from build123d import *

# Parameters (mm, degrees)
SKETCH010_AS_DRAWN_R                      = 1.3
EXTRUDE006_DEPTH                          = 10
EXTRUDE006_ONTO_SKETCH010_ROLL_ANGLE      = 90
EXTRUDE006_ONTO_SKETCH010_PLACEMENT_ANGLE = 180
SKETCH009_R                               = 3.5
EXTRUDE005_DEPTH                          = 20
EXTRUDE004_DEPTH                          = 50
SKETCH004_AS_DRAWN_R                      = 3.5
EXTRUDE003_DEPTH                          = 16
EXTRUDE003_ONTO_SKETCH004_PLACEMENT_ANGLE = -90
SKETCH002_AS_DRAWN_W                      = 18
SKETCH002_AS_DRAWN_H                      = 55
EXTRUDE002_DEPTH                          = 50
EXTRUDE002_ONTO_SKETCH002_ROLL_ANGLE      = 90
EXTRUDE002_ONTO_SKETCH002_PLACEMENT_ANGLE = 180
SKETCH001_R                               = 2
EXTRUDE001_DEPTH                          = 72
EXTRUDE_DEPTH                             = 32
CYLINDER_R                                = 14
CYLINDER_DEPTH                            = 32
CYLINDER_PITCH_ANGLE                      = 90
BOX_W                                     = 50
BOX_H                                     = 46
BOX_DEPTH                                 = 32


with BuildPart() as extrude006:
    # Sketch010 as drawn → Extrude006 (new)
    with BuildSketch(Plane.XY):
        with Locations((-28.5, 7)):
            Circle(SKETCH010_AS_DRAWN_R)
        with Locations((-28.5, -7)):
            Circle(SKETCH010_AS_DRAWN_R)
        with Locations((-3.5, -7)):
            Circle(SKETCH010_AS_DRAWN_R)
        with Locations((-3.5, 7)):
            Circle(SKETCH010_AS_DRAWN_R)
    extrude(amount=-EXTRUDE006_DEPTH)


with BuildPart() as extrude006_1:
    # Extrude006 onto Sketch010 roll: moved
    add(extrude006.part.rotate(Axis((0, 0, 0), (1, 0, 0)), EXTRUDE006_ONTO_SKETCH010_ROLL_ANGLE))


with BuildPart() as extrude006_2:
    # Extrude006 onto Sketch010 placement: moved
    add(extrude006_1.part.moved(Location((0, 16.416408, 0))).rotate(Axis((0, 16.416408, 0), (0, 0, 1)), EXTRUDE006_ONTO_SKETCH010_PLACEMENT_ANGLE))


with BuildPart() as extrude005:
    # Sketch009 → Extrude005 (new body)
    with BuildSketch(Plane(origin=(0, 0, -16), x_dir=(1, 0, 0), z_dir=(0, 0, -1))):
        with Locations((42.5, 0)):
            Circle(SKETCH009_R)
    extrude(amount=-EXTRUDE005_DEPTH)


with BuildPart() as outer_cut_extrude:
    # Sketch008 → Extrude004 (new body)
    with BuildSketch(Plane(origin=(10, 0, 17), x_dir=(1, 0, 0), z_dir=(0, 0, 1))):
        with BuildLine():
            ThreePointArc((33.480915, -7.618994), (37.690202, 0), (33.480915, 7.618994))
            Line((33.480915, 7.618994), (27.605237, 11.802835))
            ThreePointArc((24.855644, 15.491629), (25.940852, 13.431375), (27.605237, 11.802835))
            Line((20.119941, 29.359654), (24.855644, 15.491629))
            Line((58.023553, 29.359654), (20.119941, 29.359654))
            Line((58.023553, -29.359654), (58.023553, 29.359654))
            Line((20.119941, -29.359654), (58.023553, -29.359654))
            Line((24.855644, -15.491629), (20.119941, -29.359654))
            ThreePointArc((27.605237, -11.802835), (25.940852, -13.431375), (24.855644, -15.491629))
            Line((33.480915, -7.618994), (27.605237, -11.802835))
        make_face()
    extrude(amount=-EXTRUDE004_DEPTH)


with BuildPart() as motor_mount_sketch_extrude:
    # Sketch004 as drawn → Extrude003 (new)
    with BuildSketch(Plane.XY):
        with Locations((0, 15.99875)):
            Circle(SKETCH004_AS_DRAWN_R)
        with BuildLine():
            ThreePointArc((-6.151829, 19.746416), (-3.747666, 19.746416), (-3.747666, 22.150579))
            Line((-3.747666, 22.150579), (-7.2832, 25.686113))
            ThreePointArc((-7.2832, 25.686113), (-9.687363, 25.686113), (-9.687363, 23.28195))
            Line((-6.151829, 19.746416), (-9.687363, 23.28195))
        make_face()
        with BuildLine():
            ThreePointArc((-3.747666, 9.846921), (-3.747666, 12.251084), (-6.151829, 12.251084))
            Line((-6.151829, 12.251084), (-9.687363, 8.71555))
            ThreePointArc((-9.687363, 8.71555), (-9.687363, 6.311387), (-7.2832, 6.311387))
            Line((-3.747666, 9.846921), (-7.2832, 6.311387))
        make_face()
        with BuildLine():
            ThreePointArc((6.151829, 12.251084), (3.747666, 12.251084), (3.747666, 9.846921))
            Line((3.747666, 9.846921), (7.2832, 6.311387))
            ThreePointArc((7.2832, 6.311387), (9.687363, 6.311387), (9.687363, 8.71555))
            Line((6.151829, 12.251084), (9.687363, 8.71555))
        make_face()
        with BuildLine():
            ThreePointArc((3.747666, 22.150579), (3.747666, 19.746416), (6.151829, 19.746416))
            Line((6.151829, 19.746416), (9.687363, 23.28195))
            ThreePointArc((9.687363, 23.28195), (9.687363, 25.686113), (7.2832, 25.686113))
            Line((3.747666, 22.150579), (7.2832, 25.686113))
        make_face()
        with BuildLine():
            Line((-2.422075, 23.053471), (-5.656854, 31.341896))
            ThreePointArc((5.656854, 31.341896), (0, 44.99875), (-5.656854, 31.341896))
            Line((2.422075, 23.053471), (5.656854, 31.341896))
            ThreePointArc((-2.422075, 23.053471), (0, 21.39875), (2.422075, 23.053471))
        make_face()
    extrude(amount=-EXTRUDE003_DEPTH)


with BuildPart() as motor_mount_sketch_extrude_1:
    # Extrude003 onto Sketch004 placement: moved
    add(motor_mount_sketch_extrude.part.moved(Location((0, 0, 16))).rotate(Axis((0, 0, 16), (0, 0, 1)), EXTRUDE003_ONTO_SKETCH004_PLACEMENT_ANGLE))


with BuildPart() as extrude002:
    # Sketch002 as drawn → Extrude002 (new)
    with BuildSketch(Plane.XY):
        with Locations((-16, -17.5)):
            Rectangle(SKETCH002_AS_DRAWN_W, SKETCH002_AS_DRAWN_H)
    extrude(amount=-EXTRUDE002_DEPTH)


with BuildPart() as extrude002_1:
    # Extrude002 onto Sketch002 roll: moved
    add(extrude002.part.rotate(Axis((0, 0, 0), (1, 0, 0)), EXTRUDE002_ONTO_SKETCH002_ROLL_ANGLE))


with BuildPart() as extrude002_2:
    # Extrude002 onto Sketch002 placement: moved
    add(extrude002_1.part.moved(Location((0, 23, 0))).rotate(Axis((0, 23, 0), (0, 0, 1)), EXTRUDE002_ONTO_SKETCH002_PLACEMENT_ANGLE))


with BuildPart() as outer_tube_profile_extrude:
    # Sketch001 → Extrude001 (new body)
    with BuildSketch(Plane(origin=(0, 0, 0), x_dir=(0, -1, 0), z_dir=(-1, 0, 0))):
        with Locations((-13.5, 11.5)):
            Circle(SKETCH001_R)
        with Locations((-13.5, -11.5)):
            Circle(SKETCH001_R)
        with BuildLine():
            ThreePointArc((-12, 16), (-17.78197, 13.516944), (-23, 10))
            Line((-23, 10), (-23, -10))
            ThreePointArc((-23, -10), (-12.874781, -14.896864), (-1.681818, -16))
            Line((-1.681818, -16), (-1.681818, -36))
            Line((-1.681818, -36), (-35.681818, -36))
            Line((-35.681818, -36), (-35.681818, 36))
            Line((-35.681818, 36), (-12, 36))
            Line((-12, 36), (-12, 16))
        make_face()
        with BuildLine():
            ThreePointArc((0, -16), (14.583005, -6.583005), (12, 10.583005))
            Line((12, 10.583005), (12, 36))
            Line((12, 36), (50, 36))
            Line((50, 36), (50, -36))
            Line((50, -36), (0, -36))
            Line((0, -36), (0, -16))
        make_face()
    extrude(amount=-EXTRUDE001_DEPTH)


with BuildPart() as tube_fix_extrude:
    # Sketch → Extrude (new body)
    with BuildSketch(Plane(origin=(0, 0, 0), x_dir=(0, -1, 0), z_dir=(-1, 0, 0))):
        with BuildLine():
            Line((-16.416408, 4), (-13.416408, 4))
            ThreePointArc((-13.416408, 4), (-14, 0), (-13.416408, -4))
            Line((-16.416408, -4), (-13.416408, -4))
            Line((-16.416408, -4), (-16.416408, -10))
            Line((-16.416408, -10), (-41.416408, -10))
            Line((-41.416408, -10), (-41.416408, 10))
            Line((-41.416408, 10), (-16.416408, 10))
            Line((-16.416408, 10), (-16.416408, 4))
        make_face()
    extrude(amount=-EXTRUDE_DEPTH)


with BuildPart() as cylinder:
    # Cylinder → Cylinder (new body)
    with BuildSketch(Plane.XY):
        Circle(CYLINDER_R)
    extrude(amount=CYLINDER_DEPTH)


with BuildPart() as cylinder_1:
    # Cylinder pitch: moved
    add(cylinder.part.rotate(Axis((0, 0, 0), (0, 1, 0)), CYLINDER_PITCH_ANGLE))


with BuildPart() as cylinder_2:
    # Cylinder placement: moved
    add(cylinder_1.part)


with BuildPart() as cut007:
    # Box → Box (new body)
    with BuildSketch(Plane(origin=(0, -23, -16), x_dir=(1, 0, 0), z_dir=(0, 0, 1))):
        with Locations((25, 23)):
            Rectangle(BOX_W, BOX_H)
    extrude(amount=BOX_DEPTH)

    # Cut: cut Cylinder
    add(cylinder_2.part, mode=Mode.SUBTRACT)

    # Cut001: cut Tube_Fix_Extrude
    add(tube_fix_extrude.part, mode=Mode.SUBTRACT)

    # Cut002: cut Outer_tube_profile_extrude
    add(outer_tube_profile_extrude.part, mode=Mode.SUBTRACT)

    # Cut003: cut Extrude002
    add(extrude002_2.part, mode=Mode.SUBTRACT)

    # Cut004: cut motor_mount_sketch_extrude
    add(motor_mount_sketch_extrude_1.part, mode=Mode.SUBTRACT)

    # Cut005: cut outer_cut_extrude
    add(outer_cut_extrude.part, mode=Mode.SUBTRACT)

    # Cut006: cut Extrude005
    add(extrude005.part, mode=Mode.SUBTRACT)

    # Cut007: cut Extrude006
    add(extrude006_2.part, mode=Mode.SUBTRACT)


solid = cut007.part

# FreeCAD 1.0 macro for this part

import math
import FreeCAD as App
import Part
import Sketcher

V = App.Vector


def add_polygon(sketch, points):
    """Adds a closed chain of lines whose ends are joined by coincident constraints."""
    first, n = sketch.GeometryCount, len(points)
    for a, b in zip(points, points[1:] + points[:1]):
        sketch.addGeometry(Part.LineSegment(App.Vector(*a, 0), App.Vector(*b, 0)), False)
    for i in range(n):
        sketch.addConstraint(Sketcher.Constraint("Coincident", first + i, 2, first + (i + 1) % n, 1))

doc = App.newDocument("Part")
body = doc.addObject("PartDesign::Body", "Body")
body.AllowCompound = True

sketch1 = doc.addObject("Sketcher::SketchObject", "Sketch")
body.addObject(sketch1)
sketch1.AttachmentSupport = (doc.XY_Plane, [""])
sketch1.MapMode = "FlatFace"
sketch1.addGeometry(Part.Circle(V(-28.5, 7, 0), V(0, 0, 1), 1.3), False)
sketch1.addGeometry(Part.Circle(V(-28.5, -7, 0), V(0, 0, 1), 1.3), False)
sketch1.addGeometry(Part.Circle(V(-3.5, -7, 0), V(0, 0, 1), 1.3), False)
sketch1.addGeometry(Part.Circle(V(-3.5, 7, 0), V(0, 0, 1), 1.3), False)
sketch1.addConstraint(Sketcher.Constraint("Equal", 0, 1))
sketch1.addConstraint(Sketcher.Constraint("Equal", 1, 2))
sketch1.addConstraint(Sketcher.Constraint("Equal", 2, 3))
sketch1.addConstraint(Sketcher.Constraint("Symmetric", 0, 3, 1, 3, -1))
sketch1.addConstraint(Sketcher.Constraint("Symmetric", 2, 3, 3, 3, -1))
sketch1.addConstraint(Sketcher.Constraint("Horizontal", 1, 3, 2, 3))
sketch1.addConstraint(Sketcher.Constraint("Diameter", 0, 2.6))
sketch1.addConstraint(Sketcher.Constraint("DistanceY", -1, 1, 0, 3, 7.0))
sketch1.addConstraint(Sketcher.Constraint("DistanceX", 1, 3, 2, 3, 25.0))
sketch1.addConstraint(Sketcher.Constraint("DistanceX", 0, 3, -1, 1, 28.5))
pad1 = doc.addObject("PartDesign::Pad", "Pad")
body.addObject(pad1)
pad1.Profile = sketch1
pad1.Length = 10
pad1.Reversed = True
body2 = doc.addObject("PartDesign::Body", "Body001")
body2.AllowCompound = True
doc.recompute()

body.Placement = App.Placement(V(0, 0, 0), App.Rotation(V(1, 0, 0), 90))
boolean = doc.addObject("PartDesign::Boolean", "Boolean")
body2.addObject(boolean)
boolean.Type = "Fuse"
boolean.addObjects([body])
body3 = doc.addObject("PartDesign::Body", "Body002")
body3.AllowCompound = True
doc.recompute()

body2.Placement = App.Placement(V(0, 16.416408, 0), App.Rotation(V(0, 0, 1), 180))
boolean2 = doc.addObject("PartDesign::Boolean", "Boolean001")
body3.addObject(boolean2)
boolean2.Type = "Fuse"
boolean2.addObjects([body2])
body4 = doc.addObject("PartDesign::Body", "Body003")

sketch2 = doc.addObject("Sketcher::SketchObject", "Sketch001")
body4.addObject(sketch2)
sketch2.AttachmentSupport = (doc.getObject("XY_Plane003"), [""])
sketch2.MapMode = "FlatFace"
sketch2.AttachmentOffset = App.Placement(V(0, 0, -16), App.Rotation())
sketch2.addGeometry(Part.Circle(V(42.5, 0, 0), V(0, 0, 1), 3.5), False)
sketch2.addConstraint(Sketcher.Constraint("PointOnObject", 0, 3, -1))
sketch2.addConstraint(Sketcher.Constraint("Diameter", 0, 7.0))
sketch2.addConstraint(Sketcher.Constraint("DistanceX", -1, 1, 0, 3, 42.5))
pad2 = doc.addObject("PartDesign::Pad", "Pad001")
body4.addObject(pad2)
pad2.Profile = sketch2
pad2.Length = 20
body5 = doc.addObject("PartDesign::Body", "Body004")

sketch3 = doc.addObject("Sketcher::SketchObject", "Sketch002")
body5.addObject(sketch3)
sketch3.AttachmentSupport = (doc.getObject("XY_Plane004"), [""])
sketch3.MapMode = "FlatFace"
sketch3.AttachmentOffset = App.Placement(V(0, 0, 17), App.Rotation())
sketch3.addGeometry(Part.ArcOfCircle(Part.Circle(V(38.7, 0, 0), V(0, 0, 1), 9), math.radians(-58), math.radians(58)), False)
sketch3.addGeometry(Part.LineSegment(V(43.5, -7.6, 0), V(37.6, -11.8, 0)), False)
sketch3.addGeometry(Part.ArcOfCircle(Part.Circle(V(42, -17.9, 0), V(0, 0, 1), 7.5), math.radians(125), math.radians(161)), False)
sketch3.addGeometry(Part.LineSegment(V(34.9, -15.5, 0), V(30.1, -29.4, 0)), False)
sketch3.addGeometry(Part.LineSegment(V(30.1, -29.4, 0), V(68, -29.4, 0)), False)
sketch3.addGeometry(Part.LineSegment(V(68, -29.4, 0), V(68, 29.4, 0)), False)
sketch3.addGeometry(Part.LineSegment(V(68, 29.4, 0), V(30.1, 29.4, 0)), False)
sketch3.addGeometry(Part.LineSegment(V(30.1, 29.4, 0), V(34.9, 15.5, 0)), False)
sketch3.addGeometry(Part.ArcOfCircle(Part.Circle(V(42, 17.9, 0), V(0, 0, 1), 7.5), math.radians(-161), math.radians(-125)), False)
sketch3.addGeometry(Part.LineSegment(V(37.6, 11.8, 0), V(43.5, 7.6, 0)), False)
sketch3.addConstraint(Sketcher.Constraint("Coincident", 0, 1, 1, 1))
sketch3.addConstraint(Sketcher.Constraint("Tangent", 1, 2, 2, 1))
sketch3.addConstraint(Sketcher.Constraint("Tangent", 2, 2, 3, 1))
sketch3.addConstraint(Sketcher.Constraint("Coincident", 3, 2, 4, 1))
sketch3.addConstraint(Sketcher.Constraint("Coincident", 4, 2, 5, 1))
sketch3.addConstraint(Sketcher.Constraint("Coincident", 5, 2, 6, 1))
sketch3.addConstraint(Sketcher.Constraint("Coincident", 6, 2, 7, 1))
sketch3.addConstraint(Sketcher.Constraint("Tangent", 7, 2, 8, 1))
sketch3.addConstraint(Sketcher.Constraint("Tangent", 8, 2, 9, 1))
sketch3.addConstraint(Sketcher.Constraint("Coincident", 9, 2, 0, 2))
sketch3.addConstraint(Sketcher.Constraint("Horizontal", 4))
sketch3.addConstraint(Sketcher.Constraint("Vertical", 5))
sketch3.addConstraint(Sketcher.Constraint("Horizontal", 6))
sketch3.addConstraint(Sketcher.Constraint("Equal", 2, 8))
sketch3.addConstraint(Sketcher.Constraint("Symmetric", 2, 3, 8, 3, -1))
sketch3.addConstraint(Sketcher.Constraint("Symmetric", 3, 2, 6, 2, -1))
sketch3.addConstraint(Sketcher.Constraint("Symmetric", 0, 1, 9, 2, -1))
sketch3.addConstraint(Sketcher.Constraint("Radius", 0, 9.0))
sketch3.addConstraint(Sketcher.Constraint("Radius", 2, 7.506261))
sketch3.addConstraint(Sketcher.Constraint("DistanceX", -1, 1, 0, 3, 38.690202))
sketch3.addConstraint(Sketcher.Constraint("Distance", 1, 7.213052))
sketch3.addConstraint(Sketcher.Constraint("DistanceX", 4, 1, 4, 2, 37.903612))
sketch3.addConstraint(Sketcher.Constraint("DistanceY", 5, 1, 5, 2, 58.719308))
sketch3.addConstraint(Sketcher.Constraint("DistanceX", -1, 1, 2, 3, 41.959149))
sketch3.addConstraint(Sketcher.Constraint("DistanceY", 2, 3, -1, 1, 17.917359))
sketch3.addConstraint(Sketcher.Constraint("DistanceY", 2, 2, -1, 1, 15.491629))
pad3 = doc.addObject("PartDesign::Pad", "Pad002")
body5.addObject(pad3)
pad3.Profile = sketch3
pad3.Length = 50
pad3.Reversed = True
body6 = doc.addObject("PartDesign::Body", "Body005")
body6.AllowCompound = True

sketch4 = doc.addObject("Sketcher::SketchObject", "Sketch003")
body6.addObject(sketch4)
sketch4.AttachmentSupport = (doc.getObject("XY_Plane005"), [""])
sketch4.MapMode = "FlatFace"
sketch4.addGeometry(Part.Circle(V(0, 16, 0), V(0, 0, 1), 3.5), False)
sketch4.addGeometry(Part.ArcOfCircle(Part.Circle(V(-4.9, 20.9, 0), V(0, 0, 1), 1.7), math.radians(-135), math.radians(45)), False)
sketch4.addGeometry(Part.LineSegment(V(-3.7, 22.2, 0), V(-7.3, 25.7, 0)), False)
sketch4.addGeometry(Part.ArcOfCircle(Part.Circle(V(-8.5, 24.5, 0), V(0, 0, 1), 1.7), math.radians(45), math.radians(225)), False)
sketch4.addGeometry(Part.LineSegment(V(-9.7, 23.3, 0), V(-6.2, 19.7, 0)), False)
sketch4.addGeometry(Part.ArcOfCircle(Part.Circle(V(-4.9, 11, 0), V(0, 0, 1), 1.7), math.radians(-45), math.radians(135)), False)
sketch4.addGeometry(Part.LineSegment(V(-6.2, 12.3, 0), V(-9.7, 8.7, 0)), False)
sketch4.addGeometry(Part.ArcOfCircle(Part.Circle(V(-8.5, 7.5, 0), V(0, 0, 1), 1.7), math.radians(135), math.radians(315)), False)
sketch4.addGeometry(Part.LineSegment(V(-7.3, 6.3, 0), V(-3.7, 9.8, 0)), False)
sketch4.addGeometry(Part.ArcOfCircle(Part.Circle(V(4.9, 11, 0), V(0, 0, 1), 1.7), math.radians(45), math.radians(225)), False)
sketch4.addGeometry(Part.LineSegment(V(3.7, 9.8, 0), V(7.3, 6.3, 0)), False)
sketch4.addGeometry(Part.ArcOfCircle(Part.Circle(V(8.5, 7.5, 0), V(0, 0, 1), 1.7), math.radians(-135), math.radians(45)), False)
sketch4.addGeometry(Part.LineSegment(V(9.7, 8.7, 0), V(6.2, 12.3, 0)), False)
sketch4.addGeometry(Part.ArcOfCircle(Part.Circle(V(4.9, 20.9, 0), V(0, 0, 1), 1.7), math.radians(135), math.radians(315)), False)
sketch4.addGeometry(Part.LineSegment(V(6.2, 19.7, 0), V(9.7, 23.3, 0)), False)
sketch4.addGeometry(Part.ArcOfCircle(Part.Circle(V(8.5, 24.5, 0), V(0, 0, 1), 1.7), math.radians(-45), math.radians(135)), False)
sketch4.addGeometry(Part.LineSegment(V(7.3, 25.7, 0), V(3.7, 22.2, 0)), False)
sketch4.addGeometry(Part.LineSegment(V(-5.7, 31.3, 0), V(-2.4, 23.1, 0)), False)
sketch4.addGeometry(Part.ArcOfCircle(Part.Circle(V(0, 24, 0), V(0, 0, 1), 2.6), math.radians(-159), math.radians(-21)), False)
sketch4.addGeometry(Part.LineSegment(V(2.4, 23.1, 0), V(5.7, 31.3, 0)), False)
sketch4.addGeometry(Part.ArcOfCircle(Part.Circle(V(0, 37, 0), V(0, 0, 1), 8), math.radians(-45), math.radians(225)), False)
sketch4.addConstraint(Sketcher.Constraint("Tangent", 1, 2, 2, 1))
sketch4.addConstraint(Sketcher.Constraint("Tangent", 2, 2, 3, 1))
sketch4.addConstraint(Sketcher.Constraint("Tangent", 3, 2, 4, 1))
sketch4.addConstraint(Sketcher.Constraint("Tangent", 4, 2, 1, 1))
sketch4.addConstraint(Sketcher.Constraint("Tangent", 5, 2, 6, 1))
sketch4.addConstraint(Sketcher.Constraint("Tangent", 6, 2, 7, 1))
sketch4.addConstraint(Sketcher.Constraint("Tangent", 7, 2, 8, 1))
sketch4.addConstraint(Sketcher.Constraint("Tangent", 8, 2, 5, 1))
sketch4.addConstraint(Sketcher.Constraint("Tangent", 9, 2, 10, 1))
sketch4.addConstraint(Sketcher.Constraint("Tangent", 10, 2, 11, 1))
sketch4.addConstraint(Sketcher.Constraint("Tangent", 11, 2, 12, 1))
sketch4.addConstraint(Sketcher.Constraint("Tangent", 12, 2, 9, 1))
sketch4.addConstraint(Sketcher.Constraint("Tangent", 13, 2, 14, 1))
sketch4.addConstraint(Sketcher.Constraint("Tangent", 14, 2, 15, 1))
sketch4.addConstraint(Sketcher.Constraint("Tangent", 15, 2, 16, 1))
sketch4.addConstraint(Sketcher.Constraint("Tangent", 16, 2, 13, 1))
sketch4.addConstraint(Sketcher.Constraint("Tangent", 17, 2, 18, 1))
sketch4.addConstraint(Sketcher.Constraint("Tangent", 18, 2, 19, 1))
sketch4.addConstraint(Sketcher.Constraint("Coincident", 19, 2, 20, 1))
sketch4.addConstraint(Sketcher.Constraint("Coincident", 20, 2, 17, 1))
sketch4.addConstraint(Sketcher.Constraint("Equal", 1, 3))
sketch4.addConstraint(Sketcher.Constraint("Equal", 3, 5))
sketch4.addConstraint(Sketcher.Constraint("Equal", 5, 7))
sketch4.addConstraint(Sketcher.Constraint("Equal", 7, 9))
sketch4.addConstraint(Sketcher.Constraint("Equal", 9, 11))
sketch4.addConstraint(Sketcher.Constraint("Equal", 11, 13))
sketch4.addConstraint(Sketcher.Constraint("Equal", 13, 15))
sketch4.addConstraint(Sketcher.Constraint("Symmetric", 5, 3, 9, 3, -2))
sketch4.addConstraint(Sketcher.Constraint("Symmetric", 7, 3, 11, 3, -2))
sketch4.addConstraint(Sketcher.Constraint("Symmetric", 1, 3, 13, 3, -2))
sketch4.addConstraint(Sketcher.Constraint("Symmetric", 3, 3, 15, 3, -2))
sketch4.addConstraint(Sketcher.Constraint("Symmetric", 17, 2, 18, 2, -2))
sketch4.addConstraint(Sketcher.Constraint("PointOnObject", 0, 3, -2))
sketch4.addConstraint(Sketcher.Constraint("PointOnObject", 20, 3, -2))
sketch4.addConstraint(Sketcher.Constraint("Perpendicular", 4, 6))
sketch4.addConstraint(Sketcher.Constraint("Perpendicular", 8, 10))
sketch4.addConstraint(Sketcher.Constraint("Vertical", 1, 3, 5, 3))
sketch4.addConstraint(Sketcher.Constraint("Vertical", 3, 3, 7, 3))
sketch4.addConstraint(Sketcher.Constraint("Diameter", 0, 7.0))
sketch4.addConstraint(Sketcher.Constraint("Radius", 20, 8.0))
sketch4.addConstraint(Sketcher.Constraint("Radius", 1, 1.7))
sketch4.addConstraint(Sketcher.Constraint("Radius", 18, 2.6))
sketch4.addConstraint(Sketcher.Constraint("Distance", 2, 5.0))
sketch4.addConstraint(Sketcher.Constraint("DistanceY", 0, 3, 18, 3, 8.0))
sketch4.addConstraint(Sketcher.Constraint("DistanceY", 18, 3, 20, 3, 13.0))
sketch4.addConstraint(Sketcher.Constraint("DistanceX", 2, 2, -1, 1, 7.2832))
sketch4.addConstraint(Sketcher.Constraint("DistanceY", 3, 2, 18, 3, 0.7168))
sketch4.addConstraint(Sketcher.Constraint("DistanceY", 6, 2, 0, 3, 7.2832))
sketch4.addConstraint(Sketcher.Constraint("Distance", 17, 8.897291))
sketch4.addConstraint(Sketcher.Constraint("DistanceY", -1, 1, 0, 3, 15.99875))
pad4 = doc.addObject("PartDesign::Pad", "Pad003")
body6.addObject(pad4)
pad4.Profile = sketch4
pad4.Length = 16
pad4.Reversed = True
body7 = doc.addObject("PartDesign::Body", "Body006")
body7.AllowCompound = True
doc.recompute()

body6.Placement = App.Placement(V(0, 0, 16), App.Rotation(V(0, 0, 1), 270))
boolean3 = doc.addObject("PartDesign::Boolean", "Boolean002")
body7.addObject(boolean3)
boolean3.Type = "Fuse"
boolean3.addObjects([body6])
body8 = doc.addObject("PartDesign::Body", "Body007")

sketch5 = doc.addObject("Sketcher::SketchObject", "Sketch004")
body8.addObject(sketch5)
sketch5.AttachmentSupport = (doc.getObject("XY_Plane007"), [""])
sketch5.MapMode = "FlatFace"
add_polygon(sketch5, [(-25, 10), (-25, -45), (-7, -45), (-7, 10)])
sketch5.addConstraint(Sketcher.Constraint("Vertical", 0))
sketch5.addConstraint(Sketcher.Constraint("Horizontal", 1))
sketch5.addConstraint(Sketcher.Constraint("Vertical", 2))
sketch5.addConstraint(Sketcher.Constraint("Horizontal", 3))
sketch5.addConstraint(Sketcher.Constraint("DistanceX", 1, 1, 1, 2, 18.0))
sketch5.addConstraint(Sketcher.Constraint("DistanceY", 0, 2, 0, 1, 55.0))
sketch5.addConstraint(Sketcher.Constraint("DistanceX", 0, 2, -1, 1, 25.0))
sketch5.addConstraint(Sketcher.Constraint("DistanceY", 0, 2, -1, 1, 45.0))
pad5 = doc.addObject("PartDesign::Pad", "Pad004")
body8.addObject(pad5)
pad5.Profile = sketch5
pad5.Length = 50
pad5.Reversed = True
body9 = doc.addObject("PartDesign::Body", "Body008")
doc.recompute()

body8.Placement = App.Placement(V(0, 0, 0), App.Rotation(V(1, 0, 0), 90))
boolean4 = doc.addObject("PartDesign::Boolean", "Boolean003")
body9.addObject(boolean4)
boolean4.Type = "Fuse"
boolean4.addObjects([body8])
body10 = doc.addObject("PartDesign::Body", "Body009")
doc.recompute()

body9.Placement = App.Placement(V(0, 23, 0), App.Rotation(V(0, 0, 1), 180))
boolean5 = doc.addObject("PartDesign::Boolean", "Boolean004")
body10.addObject(boolean5)
boolean5.Type = "Fuse"
boolean5.addObjects([body9])
body11 = doc.addObject("PartDesign::Body", "Body010")
body11.AllowCompound = True

sketch6 = doc.addObject("Sketcher::SketchObject", "Sketch005")
body11.addObject(sketch6)
sketch6.AttachmentSupport = (doc.getObject("YZ_Plane010"), [""])
sketch6.MapMode = "FlatFace"
sketch6.addGeometry(Part.Circle(V(13.5, 11.5, 0), V(0, 0, 1), 2), False)
sketch6.addGeometry(Part.Circle(V(13.5, -11.5, 0), V(0, 0, 1), 2), False)
sketch6.addGeometry(Part.ArcOfCircle(Part.Circle(V(1.7, -16, 0), V(0, 0, 1), 33.6), math.radians(51), math.radians(72)), False)
sketch6.addGeometry(Part.LineSegment(V(12, 16, 0), V(12, 36, 0)), False)
sketch6.addGeometry(Part.LineSegment(V(12, 36, 0), V(35.7, 36, 0)), False)
sketch6.addGeometry(Part.LineSegment(V(35.7, 36, 0), V(35.7, -36, 0)), False)
sketch6.addGeometry(Part.LineSegment(V(35.7, -36, 0), V(1.7, -36, 0)), False)
sketch6.addGeometry(Part.LineSegment(V(1.7, -36, 0), V(1.7, -16, 0)), False)
sketch6.addGeometry(Part.ArcOfCircle(Part.Circle(V(4.2, 16, 0), V(0, 0, 1), 32.1), math.radians(-94), math.radians(-54)), False)
sketch6.addGeometry(Part.LineSegment(V(23, -10, 0), V(23, 10, 0)), False)
sketch6.addGeometry(Part.ArcOfCircle(Part.Circle(V(0, 0, 0), V(0, 0, 1), 16), math.radians(139), math.radians(270)), False)
sketch6.addGeometry(Part.LineSegment(V(0, -16, 0), V(0, -36, 0)), False)
sketch6.addGeometry(Part.LineSegment(V(0, -36, 0), V(-50, -36, 0)), False)
sketch6.addGeometry(Part.LineSegment(V(-50, -36, 0), V(-50, 36, 0)), False)
sketch6.addGeometry(Part.LineSegment(V(-50, 36, 0), V(-12, 36, 0)), False)
sketch6.addGeometry(Part.LineSegment(V(-12, 36, 0), V(-12, 10.6, 0)), False)
sketch6.addConstraint(Sketcher.Constraint("Coincident", 2, 2, 3, 1))
sketch6.addConstraint(Sketcher.Constraint("Coincident", 3, 2, 4, 1))
sketch6.addConstraint(Sketcher.Constraint("Coincident", 4, 2, 5, 1))
sketch6.addConstraint(Sketcher.Constraint("Coincident", 5, 2, 6, 1))
sketch6.addConstraint(Sketcher.Constraint("Coincident", 6, 2, 7, 1))
sketch6.addConstraint(Sketcher.Constraint("Coincident", 7, 2, 8, 1))
sketch6.addConstraint(Sketcher.Constraint("Coincident", 8, 2, 9, 1))
sketch6.addConstraint(Sketcher.Constraint("Coincident", 9, 2, 2, 1))
sketch6.addConstraint(Sketcher.Constraint("Coincident", 10, 2, 11, 1))
sketch6.addConstraint(Sketcher.Constraint("Coincident", 11, 2, 12, 1))
sketch6.addConstraint(Sketcher.Constraint("Coincident", 12, 2, 13, 1))
sketch6.addConstraint(Sketcher.Constraint("Coincident", 13, 2, 14, 1))
sketch6.addConstraint(Sketcher.Constraint("Coincident", 14, 2, 15, 1))
sketch6.addConstraint(Sketcher.Constraint("Coincident", 15, 2, 10, 1))
sketch6.addConstraint(Sketcher.Constraint("Vertical", 3))
sketch6.addConstraint(Sketcher.Constraint("Horizontal", 4))
sketch6.addConstraint(Sketcher.Constraint("Vertical", 5))
sketch6.addConstraint(Sketcher.Constraint("Horizontal", 6))
sketch6.addConstraint(Sketcher.Constraint("Vertical", 7))
sketch6.addConstraint(Sketcher.Constraint("Vertical", 9))
sketch6.addConstraint(Sketcher.Constraint("Vertical", 11))
sketch6.addConstraint(Sketcher.Constraint("Horizontal", 12))
sketch6.addConstraint(Sketcher.Constraint("Vertical", 13))
sketch6.addConstraint(Sketcher.Constraint("Horizontal", 14))
sketch6.addConstraint(Sketcher.Constraint("Vertical", 15))
sketch6.addConstraint(Sketcher.Constraint("Coincident", 10, 3, -1, 1))
sketch6.addConstraint(Sketcher.Constraint("Coincident", 7, 2, 2, 3))
sketch6.addConstraint(Sketcher.Constraint("Equal", 0, 1))
sketch6.addConstraint(Sketcher.Constraint("Symmetric", 3, 2, 14, 2, -2))
sketch6.addConstraint(Sketcher.Constraint("Symmetric", 0, 3, 1, 3, -1))
sketch6.addConstraint(Sketcher.Constraint("PointOnObject", 10, 2, -2))
sketch6.addConstraint(Sketcher.Constraint("Horizontal", 7, 2, 10, 2))
sketch6.addConstraint(Sketcher.Constraint("Horizontal", 6, 2, 11, 2))
sketch6.addConstraint(Sketcher.Constraint("Equal", 3, 7))
sketch6.addConstraint(Sketcher.Constraint("Equal", 7, 9))
sketch6.addConstraint(Sketcher.Constraint("Diameter", 0, 4.0))
sketch6.addConstraint(Sketcher.Constraint("Radius", 10, 16.0))
sketch6.addConstraint(Sketcher.Constraint("DistanceX", 6, 2, 6, 1, 34.0))
sketch6.addConstraint(Sketcher.Constraint("DistanceX", 12, 2, 12, 1, 50.0))
sketch6.addConstraint(Sketcher.Constraint("DistanceX", 14, 1, 14, 2, 38.0))
sketch6.addConstraint(Sketcher.Constraint("DistanceY", 3, 1, 3, 2, 20.0))
sketch6.addConstraint(Sketcher.Constraint("DistanceY", 5, 2, 5, 1, 72.0))
sketch6.addConstraint(Sketcher.Constraint("DistanceX", -1, 1, 8, 2, 23.0))
sketch6.addConstraint(Sketcher.Constraint("DistanceY", 8, 2, -1, 1, 10.0))
sketch6.addConstraint(Sketcher.Constraint("DistanceY", 1, 3, 0, 3, 23.0))
sketch6.addConstraint(Sketcher.Constraint("DistanceX", -1, 1, 0, 3, 13.5))
sketch6.addConstraint(Sketcher.Constraint("Radius", 8, 32.097282))
pad6 = doc.addObject("PartDesign::Pad", "Pad005")
body11.addObject(pad6)
pad6.Profile = sketch6
pad6.Length = 72
body12 = doc.addObject("PartDesign::Body", "Body011")

sketch7 = doc.addObject("Sketcher::SketchObject", "Sketch006")
body12.addObject(sketch7)
sketch7.AttachmentSupport = (doc.getObject("YZ_Plane011"), [""])
sketch7.MapMode = "FlatFace"
sketch7.addGeometry(Part.LineSegment(V(13.4, 4, 0), V(16.4, 4, 0)), False)
sketch7.addGeometry(Part.LineSegment(V(16.4, 4, 0), V(16.4, 10, 0)), False)
sketch7.addGeometry(Part.LineSegment(V(16.4, 10, 0), V(41.4, 10, 0)), False)
sketch7.addGeometry(Part.LineSegment(V(41.4, 10, 0), V(41.4, -10, 0)), False)
sketch7.addGeometry(Part.LineSegment(V(41.4, -10, 0), V(16.4, -10, 0)), False)
sketch7.addGeometry(Part.LineSegment(V(16.4, -10, 0), V(16.4, -4, 0)), False)
sketch7.addGeometry(Part.LineSegment(V(16.4, -4, 0), V(13.4, -4, 0)), False)
sketch7.addGeometry(Part.ArcOfCircle(Part.Circle(V(0, 0, 0), V(0, 0, 1), 14), math.radians(-17), math.radians(17)), False)
sketch7.addConstraint(Sketcher.Constraint("Coincident", 0, 2, 1, 1))
sketch7.addConstraint(Sketcher.Constraint("Coincident", 1, 2, 2, 1))
sketch7.addConstraint(Sketcher.Constraint("Coincident", 2, 2, 3, 1))
sketch7.addConstraint(Sketcher.Constraint("Coincident", 3, 2, 4, 1))
sketch7.addConstraint(Sketcher.Constraint("Coincident", 4, 2, 5, 1))
sketch7.addConstraint(Sketcher.Constraint("Coincident", 5, 2, 6, 1))
sketch7.addConstraint(Sketcher.Constraint("Coincident", 6, 2, 7, 1))
sketch7.addConstraint(Sketcher.Constraint("Coincident", 7, 2, 0, 1))
sketch7.addConstraint(Sketcher.Constraint("Horizontal", 0))
sketch7.addConstraint(Sketcher.Constraint("Vertical", 1))
sketch7.addConstraint(Sketcher.Constraint("Horizontal", 2))
sketch7.addConstraint(Sketcher.Constraint("Vertical", 3))
sketch7.addConstraint(Sketcher.Constraint("Horizontal", 4))
sketch7.addConstraint(Sketcher.Constraint("Vertical", 5))
sketch7.addConstraint(Sketcher.Constraint("Horizontal", 6))
sketch7.addConstraint(Sketcher.Constraint("Coincident", 7, 3, -1, 1))
sketch7.addConstraint(Sketcher.Constraint("Symmetric", 1, 2, 4, 2, -1))
sketch7.addConstraint(Sketcher.Constraint("Vertical", 6, 2, 7, 2))
sketch7.addConstraint(Sketcher.Constraint("DistanceX", 0, 1, 0, 2, 3.0))
sketch7.addConstraint(Sketcher.Constraint("DistanceX", 2, 1, 2, 2, 25.0))
sketch7.addConstraint(Sketcher.Constraint("DistanceY", 1, 1, 1, 2, 6.0))
sketch7.addConstraint(Sketcher.Constraint("DistanceY", 3, 2, 3, 1, 20.0))
sketch7.addConstraint(Sketcher.Constraint("Radius", 7, 14.000003))
pad7 = doc.addObject("PartDesign::Pad", "Pad006")
body12.addObject(pad7)
pad7.Profile = sketch7
pad7.Length = 32
body13 = doc.addObject("PartDesign::Body", "Body012")

sketch8 = doc.addObject("Sketcher::SketchObject", "Sketch007")
body13.addObject(sketch8)
sketch8.AttachmentSupport = (doc.getObject("XY_Plane012"), [""])
sketch8.MapMode = "FlatFace"
sketch8.addGeometry(Part.Circle(V(0, 0, 0), V(0, 0, 1), 14), False)
sketch8.addConstraint(Sketcher.Constraint("Coincident", 0, 3, -1, 1))
sketch8.addConstraint(Sketcher.Constraint("Diameter", 0, 28.0))
pad8 = doc.addObject("PartDesign::Pad", "Pad007")
body13.addObject(pad8)
pad8.Profile = sketch8
pad8.Length = 32
body14 = doc.addObject("PartDesign::Body", "Body013")
doc.recompute()

body13.Placement = App.Placement(V(0, 0, 0), App.Rotation(V(0, 1, 0), 90))
boolean6 = doc.addObject("PartDesign::Boolean", "Boolean005")
body14.addObject(boolean6)
boolean6.Type = "Fuse"
boolean6.addObjects([body13])
body15 = doc.addObject("PartDesign::Body", "Body014")

sketch9 = doc.addObject("Sketcher::SketchObject", "Sketch008")
body15.addObject(sketch9)
sketch9.AttachmentSupport = (doc.getObject("XY_Plane014"), [""])
sketch9.MapMode = "FlatFace"
sketch9.AttachmentOffset = App.Placement(V(0, 0, -16), App.Rotation())
add_polygon(sketch9, [(0, 23), (0, -23), (50, -23), (50, 23)])
sketch9.addConstraint(Sketcher.Constraint("Vertical", 0))
sketch9.addConstraint(Sketcher.Constraint("Horizontal", 1))
sketch9.addConstraint(Sketcher.Constraint("Vertical", 2))
sketch9.addConstraint(Sketcher.Constraint("Horizontal", 3))
sketch9.addConstraint(Sketcher.Constraint("Symmetric", 0, 2, 3, 2, -1, 1))
sketch9.addConstraint(Sketcher.Constraint("DistanceX", 1, 1, 1, 2, 50.0))
sketch9.addConstraint(Sketcher.Constraint("DistanceY", 0, 2, 0, 1, 46.0))
pad9 = doc.addObject("PartDesign::Pad", "Pad008")
body15.addObject(pad9)
pad9.Profile = sketch9
pad9.Length = 32
doc.recompute()

boolean7 = doc.addObject("PartDesign::Boolean", "Boolean006")
body15.addObject(boolean7)
boolean7.Type = "Cut"
boolean7.addObjects([body14])
doc.recompute()

boolean8 = doc.addObject("PartDesign::Boolean", "Boolean007")
body15.addObject(boolean8)
boolean8.Type = "Cut"
boolean8.addObjects([body12])
doc.recompute()

boolean9 = doc.addObject("PartDesign::Boolean", "Boolean008")
body15.addObject(boolean9)
boolean9.Type = "Cut"
boolean9.addObjects([body11])
doc.recompute()

boolean10 = doc.addObject("PartDesign::Boolean", "Boolean009")
body15.addObject(boolean10)
boolean10.Type = "Cut"
boolean10.addObjects([body10])
doc.recompute()

boolean11 = doc.addObject("PartDesign::Boolean", "Boolean010")
body15.addObject(boolean11)
boolean11.Type = "Cut"
boolean11.addObjects([body7])
doc.recompute()

boolean12 = doc.addObject("PartDesign::Boolean", "Boolean011")
body15.addObject(boolean12)
boolean12.Type = "Cut"
boolean12.addObjects([body5])
doc.recompute()

boolean13 = doc.addObject("PartDesign::Boolean", "Boolean012")
body15.addObject(boolean13)
boolean13.Type = "Cut"
boolean13.addObjects([body4])
doc.recompute()

boolean14 = doc.addObject("PartDesign::Boolean", "Boolean013")
body15.addObject(boolean14)
boolean14.Type = "Cut"
boolean14.addObjects([body3])

doc.recompute()
